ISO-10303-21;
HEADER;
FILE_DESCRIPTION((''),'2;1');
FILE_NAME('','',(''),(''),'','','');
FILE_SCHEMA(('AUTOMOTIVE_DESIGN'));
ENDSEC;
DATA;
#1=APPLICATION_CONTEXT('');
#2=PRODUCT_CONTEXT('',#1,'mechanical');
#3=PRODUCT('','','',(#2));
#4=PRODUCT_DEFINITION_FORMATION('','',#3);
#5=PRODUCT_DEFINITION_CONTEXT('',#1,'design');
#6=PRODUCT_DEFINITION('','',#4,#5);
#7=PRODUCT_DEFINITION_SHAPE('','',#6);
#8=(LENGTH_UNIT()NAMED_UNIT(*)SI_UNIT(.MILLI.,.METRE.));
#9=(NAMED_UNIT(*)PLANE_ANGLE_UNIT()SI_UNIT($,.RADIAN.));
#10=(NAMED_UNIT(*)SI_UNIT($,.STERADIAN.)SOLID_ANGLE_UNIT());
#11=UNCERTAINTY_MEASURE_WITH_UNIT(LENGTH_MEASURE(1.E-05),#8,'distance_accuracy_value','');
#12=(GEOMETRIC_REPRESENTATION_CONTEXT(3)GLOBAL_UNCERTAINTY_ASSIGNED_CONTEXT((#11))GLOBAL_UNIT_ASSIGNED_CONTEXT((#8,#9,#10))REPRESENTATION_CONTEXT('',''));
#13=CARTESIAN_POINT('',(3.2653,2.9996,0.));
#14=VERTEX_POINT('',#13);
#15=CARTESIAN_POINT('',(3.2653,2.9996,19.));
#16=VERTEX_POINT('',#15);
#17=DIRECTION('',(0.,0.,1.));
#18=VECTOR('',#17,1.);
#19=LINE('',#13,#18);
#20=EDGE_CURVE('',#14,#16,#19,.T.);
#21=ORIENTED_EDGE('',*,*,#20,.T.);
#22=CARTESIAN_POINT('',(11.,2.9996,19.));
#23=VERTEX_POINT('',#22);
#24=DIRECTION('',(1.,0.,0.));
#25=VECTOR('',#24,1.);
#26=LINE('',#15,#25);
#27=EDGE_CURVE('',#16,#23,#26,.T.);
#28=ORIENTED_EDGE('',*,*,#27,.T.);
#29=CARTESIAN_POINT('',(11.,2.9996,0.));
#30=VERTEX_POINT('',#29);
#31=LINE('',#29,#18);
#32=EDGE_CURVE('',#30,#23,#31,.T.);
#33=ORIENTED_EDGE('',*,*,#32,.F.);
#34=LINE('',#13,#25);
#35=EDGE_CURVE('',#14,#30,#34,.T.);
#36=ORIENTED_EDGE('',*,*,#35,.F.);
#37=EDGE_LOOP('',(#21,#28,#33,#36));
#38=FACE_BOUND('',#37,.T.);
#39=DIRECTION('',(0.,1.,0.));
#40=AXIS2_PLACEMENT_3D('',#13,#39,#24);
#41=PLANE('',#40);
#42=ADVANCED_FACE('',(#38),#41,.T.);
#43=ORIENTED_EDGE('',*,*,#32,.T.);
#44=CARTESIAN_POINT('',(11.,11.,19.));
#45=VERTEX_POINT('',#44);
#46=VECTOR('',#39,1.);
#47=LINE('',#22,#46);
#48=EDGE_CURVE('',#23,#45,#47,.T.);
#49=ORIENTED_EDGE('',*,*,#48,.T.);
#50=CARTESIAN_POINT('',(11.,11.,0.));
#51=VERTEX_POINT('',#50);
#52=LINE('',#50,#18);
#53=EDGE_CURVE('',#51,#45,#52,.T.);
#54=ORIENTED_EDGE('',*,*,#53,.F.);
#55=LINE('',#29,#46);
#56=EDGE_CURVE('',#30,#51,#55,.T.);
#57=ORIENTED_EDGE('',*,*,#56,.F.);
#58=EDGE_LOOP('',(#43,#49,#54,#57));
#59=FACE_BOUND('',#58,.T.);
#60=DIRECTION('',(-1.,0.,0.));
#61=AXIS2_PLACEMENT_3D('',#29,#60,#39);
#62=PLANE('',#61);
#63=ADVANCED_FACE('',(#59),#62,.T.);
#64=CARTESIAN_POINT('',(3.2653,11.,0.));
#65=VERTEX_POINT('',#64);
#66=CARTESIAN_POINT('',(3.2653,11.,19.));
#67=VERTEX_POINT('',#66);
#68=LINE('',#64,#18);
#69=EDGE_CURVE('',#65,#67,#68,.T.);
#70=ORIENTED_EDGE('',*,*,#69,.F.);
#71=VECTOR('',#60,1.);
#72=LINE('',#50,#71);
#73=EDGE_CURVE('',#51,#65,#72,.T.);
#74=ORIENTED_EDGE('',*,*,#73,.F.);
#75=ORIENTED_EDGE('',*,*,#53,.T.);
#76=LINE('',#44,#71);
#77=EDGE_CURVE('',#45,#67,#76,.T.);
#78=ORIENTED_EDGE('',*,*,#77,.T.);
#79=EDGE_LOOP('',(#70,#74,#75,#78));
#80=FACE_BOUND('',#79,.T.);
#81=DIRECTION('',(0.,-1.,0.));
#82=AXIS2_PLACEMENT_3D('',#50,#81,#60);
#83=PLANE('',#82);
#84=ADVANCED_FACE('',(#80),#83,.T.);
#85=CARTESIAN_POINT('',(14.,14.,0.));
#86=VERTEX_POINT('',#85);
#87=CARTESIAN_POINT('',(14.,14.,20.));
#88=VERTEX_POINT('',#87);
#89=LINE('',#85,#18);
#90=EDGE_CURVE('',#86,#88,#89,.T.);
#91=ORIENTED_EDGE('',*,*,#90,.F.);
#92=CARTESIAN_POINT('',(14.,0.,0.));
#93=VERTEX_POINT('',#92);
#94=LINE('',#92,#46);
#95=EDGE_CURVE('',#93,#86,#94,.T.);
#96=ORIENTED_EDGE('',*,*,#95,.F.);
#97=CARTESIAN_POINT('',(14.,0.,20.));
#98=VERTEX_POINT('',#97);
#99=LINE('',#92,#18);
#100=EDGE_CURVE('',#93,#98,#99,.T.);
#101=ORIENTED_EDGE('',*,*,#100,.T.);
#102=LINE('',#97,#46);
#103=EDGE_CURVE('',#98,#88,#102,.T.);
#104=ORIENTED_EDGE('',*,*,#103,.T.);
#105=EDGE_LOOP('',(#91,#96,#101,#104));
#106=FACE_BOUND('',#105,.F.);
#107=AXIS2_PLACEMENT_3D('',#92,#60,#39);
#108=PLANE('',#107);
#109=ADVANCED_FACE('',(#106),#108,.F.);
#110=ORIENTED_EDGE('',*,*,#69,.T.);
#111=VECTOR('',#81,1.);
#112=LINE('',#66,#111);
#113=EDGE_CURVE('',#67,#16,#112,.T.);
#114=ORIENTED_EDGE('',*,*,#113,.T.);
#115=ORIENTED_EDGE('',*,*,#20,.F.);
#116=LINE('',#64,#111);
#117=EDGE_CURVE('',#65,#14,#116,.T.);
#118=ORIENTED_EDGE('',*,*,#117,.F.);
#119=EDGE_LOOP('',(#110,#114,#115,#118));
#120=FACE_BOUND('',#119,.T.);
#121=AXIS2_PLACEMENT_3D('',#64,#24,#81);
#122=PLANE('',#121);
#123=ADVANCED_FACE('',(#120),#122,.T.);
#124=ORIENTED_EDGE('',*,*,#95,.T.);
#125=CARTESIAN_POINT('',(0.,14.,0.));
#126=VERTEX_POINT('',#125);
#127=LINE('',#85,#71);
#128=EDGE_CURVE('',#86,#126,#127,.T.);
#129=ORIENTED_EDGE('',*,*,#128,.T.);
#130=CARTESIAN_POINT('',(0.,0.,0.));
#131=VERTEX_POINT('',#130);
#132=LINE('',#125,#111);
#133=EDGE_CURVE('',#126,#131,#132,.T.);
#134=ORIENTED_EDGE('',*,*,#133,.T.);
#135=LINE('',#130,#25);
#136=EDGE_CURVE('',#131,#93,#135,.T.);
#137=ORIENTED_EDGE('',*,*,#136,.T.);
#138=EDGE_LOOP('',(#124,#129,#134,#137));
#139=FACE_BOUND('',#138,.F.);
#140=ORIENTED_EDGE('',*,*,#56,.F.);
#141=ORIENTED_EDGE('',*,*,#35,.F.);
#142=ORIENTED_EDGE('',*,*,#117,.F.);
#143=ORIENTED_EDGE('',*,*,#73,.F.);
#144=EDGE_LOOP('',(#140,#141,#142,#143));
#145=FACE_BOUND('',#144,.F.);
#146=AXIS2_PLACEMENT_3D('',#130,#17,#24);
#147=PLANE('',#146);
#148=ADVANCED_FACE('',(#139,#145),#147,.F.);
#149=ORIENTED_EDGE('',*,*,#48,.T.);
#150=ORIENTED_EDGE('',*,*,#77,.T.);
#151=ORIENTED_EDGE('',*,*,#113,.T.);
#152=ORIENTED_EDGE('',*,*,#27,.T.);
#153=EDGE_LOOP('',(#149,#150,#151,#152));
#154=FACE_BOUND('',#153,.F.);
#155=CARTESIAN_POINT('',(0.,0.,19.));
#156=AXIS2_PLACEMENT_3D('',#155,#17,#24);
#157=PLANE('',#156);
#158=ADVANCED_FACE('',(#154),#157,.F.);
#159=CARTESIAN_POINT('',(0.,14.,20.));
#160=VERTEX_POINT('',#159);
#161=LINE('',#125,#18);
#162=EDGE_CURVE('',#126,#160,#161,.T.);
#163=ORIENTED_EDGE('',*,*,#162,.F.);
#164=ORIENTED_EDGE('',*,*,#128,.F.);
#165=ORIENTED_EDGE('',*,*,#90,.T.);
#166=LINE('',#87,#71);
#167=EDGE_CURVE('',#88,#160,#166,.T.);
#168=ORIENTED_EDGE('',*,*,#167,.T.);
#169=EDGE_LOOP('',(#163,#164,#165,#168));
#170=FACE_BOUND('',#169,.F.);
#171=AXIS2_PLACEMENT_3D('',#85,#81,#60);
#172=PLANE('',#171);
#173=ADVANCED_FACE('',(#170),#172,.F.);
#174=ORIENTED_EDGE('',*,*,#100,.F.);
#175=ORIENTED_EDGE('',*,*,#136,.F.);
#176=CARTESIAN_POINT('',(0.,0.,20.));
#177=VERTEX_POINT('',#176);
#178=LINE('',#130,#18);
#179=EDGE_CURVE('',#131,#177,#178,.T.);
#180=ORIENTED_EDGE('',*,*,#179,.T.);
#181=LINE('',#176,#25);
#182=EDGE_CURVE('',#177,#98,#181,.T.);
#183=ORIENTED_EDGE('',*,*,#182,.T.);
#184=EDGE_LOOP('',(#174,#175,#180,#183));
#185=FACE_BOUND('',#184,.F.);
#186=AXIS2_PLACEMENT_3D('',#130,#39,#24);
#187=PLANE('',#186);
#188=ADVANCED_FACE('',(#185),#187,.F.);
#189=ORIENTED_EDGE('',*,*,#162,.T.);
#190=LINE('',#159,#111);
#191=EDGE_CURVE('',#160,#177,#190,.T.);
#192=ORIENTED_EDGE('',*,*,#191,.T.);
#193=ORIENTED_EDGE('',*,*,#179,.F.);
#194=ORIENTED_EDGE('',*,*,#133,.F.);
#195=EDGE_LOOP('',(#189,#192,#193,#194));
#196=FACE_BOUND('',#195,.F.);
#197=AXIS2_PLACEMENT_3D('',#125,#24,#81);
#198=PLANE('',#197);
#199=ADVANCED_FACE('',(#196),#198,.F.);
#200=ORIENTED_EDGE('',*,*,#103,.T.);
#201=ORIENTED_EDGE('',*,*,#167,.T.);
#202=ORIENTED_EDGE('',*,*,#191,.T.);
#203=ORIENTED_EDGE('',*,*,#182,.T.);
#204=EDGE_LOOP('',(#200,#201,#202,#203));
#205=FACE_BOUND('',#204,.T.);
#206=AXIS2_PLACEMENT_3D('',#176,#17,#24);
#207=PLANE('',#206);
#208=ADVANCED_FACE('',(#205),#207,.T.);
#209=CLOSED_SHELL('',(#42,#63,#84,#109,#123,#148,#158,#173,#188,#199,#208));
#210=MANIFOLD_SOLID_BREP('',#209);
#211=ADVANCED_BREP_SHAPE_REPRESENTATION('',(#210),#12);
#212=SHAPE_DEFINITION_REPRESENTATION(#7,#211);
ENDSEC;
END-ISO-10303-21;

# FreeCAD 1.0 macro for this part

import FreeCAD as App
import Part
import Sketcher
from FreeCAD import Vector

doc = App.newDocument("Part")
body = doc.addObject("PartDesign::Body", "Body")

# Sketch on XY plane
sketch1 = doc.addObject("Sketcher::SketchObject", "Sketch")
body.addObject(sketch1)
sketch1.AttachmentSupport = (doc.XY_Plane, [""])
sketch1.MapMode = "FlatFace"
sketch1.addGeometry(Part.LineSegment(Vector(0, 14, 0), Vector(0, 0, 0)), False)
sketch1.addGeometry(Part.LineSegment(Vector(0, 0, 0), Vector(14, 0, 0)), False)
sketch1.addGeometry(Part.LineSegment(Vector(14, 0, 0), Vector(14, 14, 0)), False)
sketch1.addGeometry(Part.LineSegment(Vector(14, 14, 0), Vector(0, 14, 0)), False)
sketch1.addConstraint(Sketcher.Constraint("Coincident", 0, 2, 1, 1))
sketch1.addConstraint(Sketcher.Constraint("Coincident", 1, 2, 2, 1))
sketch1.addConstraint(Sketcher.Constraint("Coincident", 2, 2, 3, 1))
sketch1.addConstraint(Sketcher.Constraint("Coincident", 3, 2, 0, 1))
sketch1.addConstraint(Sketcher.Constraint("Vertical", 0))
sketch1.addConstraint(Sketcher.Constraint("Horizontal", 1))
sketch1.addConstraint(Sketcher.Constraint("Vertical", 2))
sketch1.addConstraint(Sketcher.Constraint("Horizontal", 3))
sketch1.addConstraint(Sketcher.Constraint("Coincident", 0, 2, -1, 1))
sketch1.addConstraint(Sketcher.Constraint("Equal", 3, 0))
sketch1.addConstraint(Sketcher.Constraint("DistanceX", 1, 1, 1, 2, 14.0))
pad1 = doc.addObject("PartDesign::Pad", "Pad")
body.addObject(pad1)
pad1.Profile = sketch1
pad1.Length = 20

# Sketch on XY plane
sketch2 = doc.addObject("Sketcher::SketchObject", "Sketch001")
body.addObject(sketch2)
sketch2.AttachmentSupport = (doc.XY_Plane, [""])
sketch2.MapMode = "FlatFace"
sketch2.addGeometry(Part.LineSegment(Vector(11, 3, 0), Vector(11, 11, 0)), False)
sketch2.addGeometry(Part.LineSegment(Vector(11, 11, 0), Vector(3, 11, 0)), False)
sketch2.addGeometry(Part.LineSegment(Vector(3, 11, 0), Vector(3, 3, 0)), False)
sketch2.addGeometry(Part.LineSegment(Vector(3, 3, 0), Vector(11, 3, 0)), False)
sketch2.addConstraint(Sketcher.Constraint("Coincident", 0, 2, 1, 1))
sketch2.addConstraint(Sketcher.Constraint("Coincident", 1, 2, 2, 1))
sketch2.addConstraint(Sketcher.Constraint("Coincident", 2, 2, 3, 1))
sketch2.addConstraint(Sketcher.Constraint("Coincident", 3, 2, 0, 1))
sketch2.addConstraint(Sketcher.Constraint("Vertical", 0))
sketch2.addConstraint(Sketcher.Constraint("Horizontal", 1))
sketch2.addConstraint(Sketcher.Constraint("Vertical", 2))
sketch2.addConstraint(Sketcher.Constraint("Horizontal", 3))
sketch2.addConstraint(Sketcher.Constraint("DistanceX", -1, 1, 0, 2, 11.0))
sketch2.addConstraint(Sketcher.Constraint("DistanceY", -1, 1, 0, 2, 11.0))
sketch2.addConstraint(Sketcher.Constraint("DistanceX", 1, 2, 1, 1, 7.7347))
sketch2.addConstraint(Sketcher.Constraint("DistanceY", 0, 1, 0, 2, 8.0004))
pocket1 = doc.addObject("PartDesign::Pocket", "Pocket")
body.addObject(pocket1)
pocket1.Profile = sketch2
pocket1.Length = 19
pocket1.Reversed = True

doc.recompute()
